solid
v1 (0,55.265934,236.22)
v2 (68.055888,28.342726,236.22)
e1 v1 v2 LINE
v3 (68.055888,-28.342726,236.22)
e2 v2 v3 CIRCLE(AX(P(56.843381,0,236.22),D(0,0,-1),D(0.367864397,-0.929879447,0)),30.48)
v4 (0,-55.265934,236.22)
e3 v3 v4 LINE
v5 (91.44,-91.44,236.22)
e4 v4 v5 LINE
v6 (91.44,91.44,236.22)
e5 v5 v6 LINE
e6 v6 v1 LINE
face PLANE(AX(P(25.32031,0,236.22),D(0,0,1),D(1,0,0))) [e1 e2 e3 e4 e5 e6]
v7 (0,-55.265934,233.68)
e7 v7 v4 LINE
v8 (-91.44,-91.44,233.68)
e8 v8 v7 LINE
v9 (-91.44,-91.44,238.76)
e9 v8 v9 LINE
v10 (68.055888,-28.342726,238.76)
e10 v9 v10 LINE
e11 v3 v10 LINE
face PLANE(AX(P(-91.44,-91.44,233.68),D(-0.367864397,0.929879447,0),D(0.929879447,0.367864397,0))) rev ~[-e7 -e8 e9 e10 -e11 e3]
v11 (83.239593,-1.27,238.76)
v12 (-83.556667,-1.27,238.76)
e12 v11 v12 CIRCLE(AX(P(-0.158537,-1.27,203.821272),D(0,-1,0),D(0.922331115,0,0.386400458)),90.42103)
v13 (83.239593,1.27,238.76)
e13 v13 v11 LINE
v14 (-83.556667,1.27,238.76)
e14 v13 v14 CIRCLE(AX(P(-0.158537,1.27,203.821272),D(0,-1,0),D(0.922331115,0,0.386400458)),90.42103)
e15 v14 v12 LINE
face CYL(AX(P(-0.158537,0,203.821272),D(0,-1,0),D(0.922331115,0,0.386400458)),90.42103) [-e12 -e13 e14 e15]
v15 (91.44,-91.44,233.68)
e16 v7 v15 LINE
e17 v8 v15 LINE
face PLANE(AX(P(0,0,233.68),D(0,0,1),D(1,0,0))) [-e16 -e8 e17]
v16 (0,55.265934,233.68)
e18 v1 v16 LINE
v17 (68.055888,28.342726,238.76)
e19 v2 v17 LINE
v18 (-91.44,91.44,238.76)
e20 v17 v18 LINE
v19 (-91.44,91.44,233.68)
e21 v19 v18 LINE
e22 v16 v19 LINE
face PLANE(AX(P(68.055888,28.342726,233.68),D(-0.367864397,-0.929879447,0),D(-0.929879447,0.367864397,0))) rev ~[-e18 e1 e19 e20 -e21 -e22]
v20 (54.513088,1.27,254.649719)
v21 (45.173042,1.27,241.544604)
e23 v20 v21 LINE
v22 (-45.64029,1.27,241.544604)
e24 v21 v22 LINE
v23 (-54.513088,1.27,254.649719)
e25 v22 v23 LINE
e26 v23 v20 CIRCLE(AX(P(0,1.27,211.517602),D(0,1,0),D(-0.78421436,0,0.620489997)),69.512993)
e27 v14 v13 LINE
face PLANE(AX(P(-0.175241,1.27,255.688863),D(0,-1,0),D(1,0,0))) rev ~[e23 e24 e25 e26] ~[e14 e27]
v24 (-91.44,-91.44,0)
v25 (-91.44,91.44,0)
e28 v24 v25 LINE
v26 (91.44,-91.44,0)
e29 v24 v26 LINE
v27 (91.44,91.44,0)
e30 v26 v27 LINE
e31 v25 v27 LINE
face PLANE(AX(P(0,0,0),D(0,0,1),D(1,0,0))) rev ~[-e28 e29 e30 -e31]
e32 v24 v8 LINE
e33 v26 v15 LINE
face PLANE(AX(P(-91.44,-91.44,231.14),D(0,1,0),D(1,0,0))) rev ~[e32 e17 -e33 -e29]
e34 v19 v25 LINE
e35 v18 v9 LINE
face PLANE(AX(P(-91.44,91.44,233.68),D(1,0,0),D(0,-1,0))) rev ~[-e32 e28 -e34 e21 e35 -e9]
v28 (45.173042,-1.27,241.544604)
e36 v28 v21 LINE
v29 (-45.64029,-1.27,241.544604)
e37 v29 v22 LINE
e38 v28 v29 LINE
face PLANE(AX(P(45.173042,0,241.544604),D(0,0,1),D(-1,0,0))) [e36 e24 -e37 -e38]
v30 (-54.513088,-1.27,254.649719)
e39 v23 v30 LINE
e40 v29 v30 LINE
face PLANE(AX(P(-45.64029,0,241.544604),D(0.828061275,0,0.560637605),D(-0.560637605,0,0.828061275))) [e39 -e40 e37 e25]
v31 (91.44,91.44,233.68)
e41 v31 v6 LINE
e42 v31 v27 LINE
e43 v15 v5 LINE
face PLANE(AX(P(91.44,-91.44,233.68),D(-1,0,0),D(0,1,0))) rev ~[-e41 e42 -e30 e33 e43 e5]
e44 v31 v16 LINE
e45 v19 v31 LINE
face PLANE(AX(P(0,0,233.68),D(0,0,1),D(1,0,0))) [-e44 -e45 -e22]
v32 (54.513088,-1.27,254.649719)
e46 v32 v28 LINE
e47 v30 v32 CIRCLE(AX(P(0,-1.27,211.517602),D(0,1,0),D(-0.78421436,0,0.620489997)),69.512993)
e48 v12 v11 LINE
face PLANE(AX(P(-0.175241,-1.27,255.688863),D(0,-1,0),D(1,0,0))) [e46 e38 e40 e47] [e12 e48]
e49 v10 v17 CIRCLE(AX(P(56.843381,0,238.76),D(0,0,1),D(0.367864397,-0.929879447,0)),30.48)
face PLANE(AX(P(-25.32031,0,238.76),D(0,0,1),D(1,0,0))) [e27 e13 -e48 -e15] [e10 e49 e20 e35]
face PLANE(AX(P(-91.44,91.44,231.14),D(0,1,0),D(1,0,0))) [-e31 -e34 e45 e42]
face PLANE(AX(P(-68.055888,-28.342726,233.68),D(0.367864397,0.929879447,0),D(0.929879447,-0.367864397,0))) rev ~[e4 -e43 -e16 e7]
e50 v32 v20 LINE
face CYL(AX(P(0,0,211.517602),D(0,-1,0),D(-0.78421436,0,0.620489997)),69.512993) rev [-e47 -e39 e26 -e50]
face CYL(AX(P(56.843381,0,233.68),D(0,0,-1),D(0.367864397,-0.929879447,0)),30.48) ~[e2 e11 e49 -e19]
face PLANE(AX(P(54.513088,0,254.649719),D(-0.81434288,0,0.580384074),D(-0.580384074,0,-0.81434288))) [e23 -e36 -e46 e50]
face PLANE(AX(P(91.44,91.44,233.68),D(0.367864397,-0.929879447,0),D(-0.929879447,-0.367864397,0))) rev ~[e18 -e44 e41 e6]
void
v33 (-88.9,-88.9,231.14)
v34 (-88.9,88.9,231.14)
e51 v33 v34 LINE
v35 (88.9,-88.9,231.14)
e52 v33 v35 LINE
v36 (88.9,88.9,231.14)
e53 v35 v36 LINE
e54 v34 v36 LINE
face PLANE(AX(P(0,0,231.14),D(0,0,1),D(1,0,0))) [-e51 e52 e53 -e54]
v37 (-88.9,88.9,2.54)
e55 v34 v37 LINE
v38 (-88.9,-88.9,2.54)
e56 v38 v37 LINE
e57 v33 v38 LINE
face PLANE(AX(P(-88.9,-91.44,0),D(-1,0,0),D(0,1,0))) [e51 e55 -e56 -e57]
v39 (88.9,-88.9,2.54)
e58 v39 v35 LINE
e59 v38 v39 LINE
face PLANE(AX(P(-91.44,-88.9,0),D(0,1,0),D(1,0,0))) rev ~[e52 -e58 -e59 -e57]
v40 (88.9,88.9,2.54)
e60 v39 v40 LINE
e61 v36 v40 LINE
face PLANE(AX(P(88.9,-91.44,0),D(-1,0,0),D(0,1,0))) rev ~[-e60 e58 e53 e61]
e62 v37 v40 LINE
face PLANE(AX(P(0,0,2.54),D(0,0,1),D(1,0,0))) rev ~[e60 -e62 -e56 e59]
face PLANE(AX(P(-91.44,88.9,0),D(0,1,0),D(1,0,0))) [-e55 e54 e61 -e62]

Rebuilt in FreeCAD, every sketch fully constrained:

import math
import FreeCAD as App
import Part
import Sketcher

V = App.Vector
Q = App.Units.Quantity


def faces_at(feature, points):
    """Names of the faces that lie closest to the given points."""
    faces = feature.Shape.Faces
    near = lambda p: min(range(len(faces)), key=lambda i: faces[i].distToShape(Part.Vertex(*p))[0])
    return sorted({f"Face{near(p) + 1}" for p in points})


def add_polygon(sketch, points):
    """Adds a closed chain of lines whose ends are joined by coincident constraints."""
    first, n = sketch.GeometryCount, len(points)
    for a, b in zip(points, points[1:] + points[:1]):
        sketch.addGeometry(Part.LineSegment(App.Vector(*a, 0), App.Vector(*b, 0)), False)
    for i in range(n):
        sketch.addConstraint(Sketcher.Constraint("Coincident", first + i, 2, first + (i + 1) % n, 1))

doc = App.newDocument("Part")
body = doc.addObject("PartDesign::Body", "Body")

sketch1 = doc.addObject("Sketcher::SketchObject", "Sketch")
body.addObject(sketch1)
sketch1.AttachmentSupport = (doc.XY_Plane, [""])
sketch1.MapMode = "FlatFace"
add_polygon(sketch1, [(-91, 91), (-91, -91), (91, -91), (91, 91)])
sketch1.addConstraint([
    Sketcher.Constraint("Vertical", 0),
    Sketcher.Constraint("Horizontal", 1),
    Sketcher.Constraint("Vertical", 2),
    Sketcher.Constraint("Horizontal", 3),
    Sketcher.Constraint("Symmetric", 0, 2, 2, 2, -1, 1),
    Sketcher.Constraint("Equal", 3, 0),
    Sketcher.Constraint("DistanceX", 1, 1, 1, 2, Q("7.2 in")),
])
pad1 = doc.addObject("PartDesign::Pad", "Pad")
body.addObject(pad1)
pad1.Profile = sketch1
pad1.Length = Q("9.1 in")
doc.recompute()

thickness = doc.addObject("PartDesign::Thickness", "Thickness")
body.addObject(thickness)
thickness.Base = (pad1, faces_at(pad1, [(0, 0, 231.14)]))
thickness.Value = Q("0.1 in")
thickness.Reversed = True
thickness.Join = "Arc"

sketch2 = doc.addObject("Sketcher::SketchObject", "Sketch001")
body.addObject(sketch2)
sketch2.AttachmentSupport = (doc.XY_Plane, [""])
sketch2.MapMode = "FlatFace"
sketch2.AttachmentOffset = App.Placement(V(0, 0, 9.1 * 25.4), App.Rotation())
add_polygon(sketch2, [(-91, 91), (-91, -91), (91, -91), (91, 91)])
sketch2.addConstraint([
    Sketcher.Constraint("Vertical", 0),
    Sketcher.Constraint("Horizontal", 1),
    Sketcher.Constraint("Vertical", 2),
    Sketcher.Constraint("Horizontal", 3),
    Sketcher.Constraint("Symmetric", 0, 2, 2, 2, -1, 1),
    Sketcher.Constraint("Equal", 3, 0),
    Sketcher.Constraint("DistanceX", 1, 1, 1, 2, Q("7.2 in")),
])
pad2 = doc.addObject("PartDesign::Pad", "Pad001")
body.addObject(pad2)
pad2.Profile = sketch2
pad2.Length = Q("0.1 in")

sketch3 = doc.addObject("Sketcher::SketchObject", "Sketch002")
body.addObject(sketch3)
sketch3.AttachmentSupport = (doc.XY_Plane, [""])
sketch3.MapMode = "FlatFace"
sketch3.AttachmentOffset = App.Placement(V(0, 0, 9.2 * 25.4), App.Rotation())
sketch3.addGeometry([
    Part.LineSegment(V(91, -91, 0), V(91, 91, 0)),
    Part.LineSegment(V(91, 91, 0), V(-68, 28, 0)),
    Part.ArcOfCircle(Part.Circle(V(-57, 0, 0), V(0, 0, 1), 30), math.radians(112), math.radians(248)),
    Part.LineSegment(V(-68, -28, 0), V(91, -91, 0)),
], False)
sketch3.addConstraint([
    Sketcher.Constraint("Coincident", 0, 2, 1, 1),
    Sketcher.Constraint("Tangent", 1, 2, 2, 1),
    Sketcher.Constraint("Tangent", 2, 2, 3, 1),
    Sketcher.Constraint("Coincident", 3, 2, 0, 1),
    Sketcher.Constraint("Vertical", 0),
    Sketcher.Constraint("Symmetric", 1, 2, 2, 2, -1),
    Sketcher.Constraint("Radius", 2, Q("1.2 in")),
    Sketcher.Constraint("DistanceY", 0, 1, 0, 2, Q("7.2 in")),
    Sketcher.Constraint("DistanceX", -1, 1, 0, 2, Q("3.6 in")),
    Sketcher.Constraint("Distance", 1, 171.523189),
])
pad3 = doc.addObject("PartDesign::Pad", "Pad002")
body.addObject(pad3)
pad3.Profile = sketch3
pad3.Length = Q("0.1 in")

sketch4 = doc.addObject("Sketcher::SketchObject", "Sketch003")
body.addObject(sketch4)
sketch4.AttachmentSupport = (doc.XY_Plane, [""])
sketch4.MapMode = "FlatFace"
sketch4.AttachmentOffset = App.Placement(V(0, 0, 9.2 * 25.4), App.Rotation())
sketch4.addGeometry([
    Part.LineSegment(V(68, 28, 0), V(-91, 91, 0)),
    Part.LineSegment(V(-91, 91, 0), V(-91, -91, 0)),
    Part.LineSegment(V(-91, -91, 0), V(68, -28, 0)),
    Part.ArcOfCircle(Part.Circle(V(57, 0, 0), V(0, 0, 1), 30), math.radians(-68), math.radians(68)),
], False)
sketch4.addConstraint([
    Sketcher.Constraint("Coincident", 0, 2, 1, 1),
    Sketcher.Constraint("Coincident", 1, 2, 2, 1),
    Sketcher.Constraint("Tangent", 2, 2, 3, 1),
    Sketcher.Constraint("Tangent", 3, 2, 0, 1),
    Sketcher.Constraint("Vertical", 1),
    Sketcher.Constraint("Symmetric", 2, 2, 3, 2, -1),
    Sketcher.Constraint("Radius", 3, Q("1.2 in")),
    Sketcher.Constraint("DistanceY", 1, 2, 1, 1, Q("7.2 in")),
    Sketcher.Constraint("DistanceX", 0, 2, -1, 1, Q("3.6 in")),
    Sketcher.Constraint("Distance", 0, 171.523189),
])
pad4 = doc.addObject("PartDesign::Pad", "Pad003")
body.addObject(pad4)
pad4.Profile = sketch4
pad4.Length = Q("0.2 in")

sketch5 = doc.addObject("Sketcher::SketchObject", "Sketch004")
body.addObject(sketch5)
sketch5.AttachmentSupport = (doc.XZ_Plane, [""])
sketch5.MapMode = "FlatFace"
sketch5.addGeometry([
    Part.LineSegment(V(83.2, 236.9, 0), V(83.2, 238.8, 0)),
    Part.ArcOfCircle(Part.Circle(V(-0.2, 203.8, 0), V(0, 0, 1), 90.4), math.radians(23), math.radians(157)),
    Part.LineSegment(V(-83.6, 238.8, 0), V(-83.6, 236.9, 0)),
    Part.LineSegment(V(-83.6, 236.9, 0), V(83.2, 236.9, 0)),
    Part.LineSegment(V(-45.6, 241.5, 0), V(-54.5, 254.6, 0)),
    Part.ArcOfCircle(Part.Circle(V(0, 211.5, 0), V(0, 0, 1), 69.5), math.radians(38), math.radians(142)),
    Part.LineSegment(V(54.5, 254.6, 0), V(45.2, 241.5, 0)),
    Part.LineSegment(V(45.2, 241.5, 0), V(-45.6, 241.5, 0)),
], False)
sketch5.addConstraint([
    Sketcher.Constraint("Coincident", 0, 2, 1, 1),
    Sketcher.Constraint("Coincident", 1, 2, 2, 1),
    Sketcher.Constraint("Coincident", 2, 2, 3, 1),
    Sketcher.Constraint("Coincident", 3, 2, 0, 1),
    Sketcher.Constraint("Coincident", 4, 2, 5, 2),
    Sketcher.Constraint("Coincident", 5, 1, 6, 1),
    Sketcher.Constraint("Coincident", 6, 2, 7, 1),
    Sketcher.Constraint("Coincident", 7, 2, 4, 1),
    Sketcher.Constraint("Vertical", 0),
    Sketcher.Constraint("Horizontal", 3),
    Sketcher.Constraint("Horizontal", 7),
    Sketcher.Constraint("Symmetric", 4, 2, 5, 1, -2),
    Sketcher.Constraint("Horizontal", 0, 2, 1, 2),
    Sketcher.Constraint("DistanceY", -1, 1, 0, 2, Q("9.4 in")),
    Sketcher.Constraint("Radius", 1, 90.42103),
    Sketcher.Constraint("Radius", 5, 69.512993),
    Sketcher.Constraint("DistanceX", 7, 2, 7, 1, 90.813331),
    Sketcher.Constraint("DistanceY", 0, 1, 0, 2, 1.890352),
    Sketcher.Constraint("Distance", 6, 16.092871),
    Sketcher.Constraint("DistanceX", 3, 1, 3, 2, 166.869603),
    Sketcher.Constraint("DistanceX", 2, 2, -1, 1, 83.63001),
    Sketcher.Constraint("DistanceY", -1, 1, 4, 2, 254.649719),
    Sketcher.Constraint("DistanceX", -1, 1, 6, 2, 45.173042),
    Sketcher.Constraint("DistanceY", 1, 3, 5, 3, 7.69633),
    Sketcher.Constraint("DistanceX", 1, 3, 0, 2, 83.39813),
])
pad5 = doc.addObject("PartDesign::Pad", "Pad004")
body.addObject(pad5)
pad5.Profile = sketch5
pad5.Length = Q("0.1 in")
pad5.Midplane = True

doc.recompute()
